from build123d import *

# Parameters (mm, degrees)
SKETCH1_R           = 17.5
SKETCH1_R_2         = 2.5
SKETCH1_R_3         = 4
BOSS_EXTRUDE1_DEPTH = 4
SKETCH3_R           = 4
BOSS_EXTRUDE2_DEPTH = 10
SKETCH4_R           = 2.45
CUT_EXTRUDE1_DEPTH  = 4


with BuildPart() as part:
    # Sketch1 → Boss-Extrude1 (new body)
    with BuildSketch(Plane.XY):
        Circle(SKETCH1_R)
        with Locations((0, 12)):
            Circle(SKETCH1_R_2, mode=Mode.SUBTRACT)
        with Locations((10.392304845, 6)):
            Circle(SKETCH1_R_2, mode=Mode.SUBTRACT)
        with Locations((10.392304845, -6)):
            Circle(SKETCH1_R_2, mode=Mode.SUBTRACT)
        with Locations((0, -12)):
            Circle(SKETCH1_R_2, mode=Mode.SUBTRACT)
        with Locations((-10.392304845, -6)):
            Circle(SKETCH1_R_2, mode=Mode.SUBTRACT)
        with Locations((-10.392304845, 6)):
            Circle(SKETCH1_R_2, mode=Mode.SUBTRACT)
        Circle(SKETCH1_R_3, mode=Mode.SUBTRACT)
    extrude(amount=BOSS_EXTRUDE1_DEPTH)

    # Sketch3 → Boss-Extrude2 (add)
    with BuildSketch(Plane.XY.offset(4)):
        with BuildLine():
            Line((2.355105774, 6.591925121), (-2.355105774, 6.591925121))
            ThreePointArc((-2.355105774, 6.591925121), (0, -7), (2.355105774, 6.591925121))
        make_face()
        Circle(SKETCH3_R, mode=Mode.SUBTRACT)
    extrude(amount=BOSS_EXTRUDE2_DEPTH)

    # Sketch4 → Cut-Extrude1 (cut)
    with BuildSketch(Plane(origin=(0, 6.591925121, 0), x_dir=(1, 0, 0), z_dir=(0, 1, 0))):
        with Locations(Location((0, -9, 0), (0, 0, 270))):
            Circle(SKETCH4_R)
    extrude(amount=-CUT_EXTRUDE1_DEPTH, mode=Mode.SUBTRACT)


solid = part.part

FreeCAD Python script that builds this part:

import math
import FreeCAD as App
import Part
import Sketcher

V = App.Vector
Q = App.Units.Quantity

doc = App.newDocument("Part")
body = doc.addObject("PartDesign::Body", "Body")

sketch1 = doc.addObject("Sketcher::SketchObject", "Sketch")
body.addObject(sketch1)
sketch1.AttachmentSupport = (doc.XY_Plane, [""])
sketch1.MapMode = "FlatFace"
sketch1.addGeometry(Part.Circle(V(0, 0, 0), V(0, 0, 1), 17.5), False)
sketch1.addGeometry(Part.Circle(V(-10.392305, -6, 0), V(0, 0, 1), 2.5), False)
sketch1.addGeometry(Part.Circle(V(0, -12, 0), V(0, 0, 1), 2.5), False)
sketch1.addGeometry(Part.Circle(V(10.392305, -6, 0), V(0, 0, 1), 2.5), False)
sketch1.addGeometry(Part.Circle(V(-10.392305, 6, 0), V(0, 0, 1), 2.5), False)
sketch1.addGeometry(Part.Circle(V(0, 0, 0), V(0, 0, 1), 4), False)
sketch1.addGeometry(Part.Circle(V(10.392305, 6, 0), V(0, 0, 1), 2.5), False)
sketch1.addGeometry(Part.Circle(V(0, 12, 0), V(0, 0, 1), 2.5), False)
sketch1.addConstraint(Sketcher.Constraint("Coincident", 0, 3, -1, 1))
sketch1.addConstraint(Sketcher.Constraint("Coincident", 5, 3, -1, 1))
sketch1.addConstraint(Sketcher.Constraint("Equal", 1, 2))
sketch1.addConstraint(Sketcher.Constraint("Equal", 2, 3))
sketch1.addConstraint(Sketcher.Constraint("Equal", 3, 4))
sketch1.addConstraint(Sketcher.Constraint("Equal", 4, 6))
sketch1.addConstraint(Sketcher.Constraint("Equal", 6, 7))
sketch1.addConstraint(Sketcher.Constraint("Symmetric", 3, 3, 4, 3, -1, 1))
sketch1.addConstraint(Sketcher.Constraint("Symmetric", 1, 3, 6, 3, -1, 1))
sketch1.addConstraint(Sketcher.Constraint("Symmetric", 2, 3, 7, 3, -1, 1))
sketch1.addConstraint(Sketcher.Constraint("Symmetric", 1, 3, 3, 3, -2))
sketch1.addConstraint(Sketcher.Constraint("PointOnObject", 2, 3, -2))
sketch1.addConstraint(Sketcher.Constraint("Diameter", 0, Q("35 mm")))
sketch1.addConstraint(Sketcher.Constraint("Diameter", 1, Q("5 mm")))
sketch1.addConstraint(Sketcher.Constraint("Diameter", 5, Q("8 mm")))
sketch1.addConstraint(Sketcher.Constraint("DistanceY", 1, 3, -1, 1, Q("6 mm")))
sketch1.addConstraint(Sketcher.Constraint("DistanceY", 2, 3, -1, 1, Q("12 mm")))
sketch1.addConstraint(Sketcher.Constraint("DistanceX", 1, 3, 3, 3, Q("20.78461 mm")))
pad1 = doc.addObject("PartDesign::Pad", "Pad")
body.addObject(pad1)
pad1.Profile = sketch1
pad1.Length = 4

sketch2 = doc.addObject("Sketcher::SketchObject", "Sketch001")
body.addObject(sketch2)
sketch2.AttachmentSupport = (doc.XY_Plane, [""])
sketch2.MapMode = "FlatFace"
sketch2.AttachmentOffset = App.Placement(V(0, 0, 4), App.Rotation())
sketch2.addGeometry(Part.LineSegment(V(2.355106, 6.591925, 0), V(-2.355106, 6.591925, 0)), False)
sketch2.addGeometry(Part.ArcOfCircle(Part.Circle(V(0, 0, 0), V(0, 0, 1), 7), math.radians(109.660351), math.radians(430.339649)), False)
sketch2.addGeometry(Part.Circle(V(0, 0, 0), V(0, 0, 1), 4), False)
sketch2.addConstraint(Sketcher.Constraint("Coincident", 0, 1, 1, 2))
sketch2.addConstraint(Sketcher.Constraint("Coincident", 1, 1, 0, 2))
sketch2.addConstraint(Sketcher.Constraint("Horizontal", 0))
sketch2.addConstraint(Sketcher.Constraint("Coincident", 1, 3, -1, 1))
sketch2.addConstraint(Sketcher.Constraint("Coincident", 2, 3, -1, 1))
sketch2.addConstraint(Sketcher.Constraint("Diameter", 2, Q("8 mm")))
sketch2.addConstraint(Sketcher.Constraint("Radius", 1, Q("7 mm")))
sketch2.addConstraint(Sketcher.Constraint("DistanceX", 0, 2, 0, 1, Q("4.710212 mm")))
pad2 = doc.addObject("PartDesign::Pad", "Pad001")
body.addObject(pad2)
pad2.Profile = sketch2
pad2.Length = 10

sketch3 = doc.addObject("Sketcher::SketchObject", "Sketch002")
body.addObject(sketch3)
sketch3.AttachmentSupport = (doc.XZ_Plane, [""])
sketch3.MapMode = "FlatFace"
sketch3.AttachmentOffset = App.Placement(V(0, 0, -6.591925), App.Rotation())
sketch3.addGeometry(Part.Circle(V(0, 9, 0), V(0, 0, 1), 2.45), False)
sketch3.addConstraint(Sketcher.Constraint("PointOnObject", 0, 3, -2))
sketch3.addConstraint(Sketcher.Constraint("Diameter", 0, Q("4.9 mm")))
sketch3.addConstraint(Sketcher.Constraint("DistanceY", -1, 1, 0, 3, Q("9 mm")))
pocket1 = doc.addObject("PartDesign::Pocket", "Pocket")
body.addObject(pocket1)
pocket1.Profile = sketch3
pocket1.Length = 4
pocket1.Reversed = True

doc.recompute()
